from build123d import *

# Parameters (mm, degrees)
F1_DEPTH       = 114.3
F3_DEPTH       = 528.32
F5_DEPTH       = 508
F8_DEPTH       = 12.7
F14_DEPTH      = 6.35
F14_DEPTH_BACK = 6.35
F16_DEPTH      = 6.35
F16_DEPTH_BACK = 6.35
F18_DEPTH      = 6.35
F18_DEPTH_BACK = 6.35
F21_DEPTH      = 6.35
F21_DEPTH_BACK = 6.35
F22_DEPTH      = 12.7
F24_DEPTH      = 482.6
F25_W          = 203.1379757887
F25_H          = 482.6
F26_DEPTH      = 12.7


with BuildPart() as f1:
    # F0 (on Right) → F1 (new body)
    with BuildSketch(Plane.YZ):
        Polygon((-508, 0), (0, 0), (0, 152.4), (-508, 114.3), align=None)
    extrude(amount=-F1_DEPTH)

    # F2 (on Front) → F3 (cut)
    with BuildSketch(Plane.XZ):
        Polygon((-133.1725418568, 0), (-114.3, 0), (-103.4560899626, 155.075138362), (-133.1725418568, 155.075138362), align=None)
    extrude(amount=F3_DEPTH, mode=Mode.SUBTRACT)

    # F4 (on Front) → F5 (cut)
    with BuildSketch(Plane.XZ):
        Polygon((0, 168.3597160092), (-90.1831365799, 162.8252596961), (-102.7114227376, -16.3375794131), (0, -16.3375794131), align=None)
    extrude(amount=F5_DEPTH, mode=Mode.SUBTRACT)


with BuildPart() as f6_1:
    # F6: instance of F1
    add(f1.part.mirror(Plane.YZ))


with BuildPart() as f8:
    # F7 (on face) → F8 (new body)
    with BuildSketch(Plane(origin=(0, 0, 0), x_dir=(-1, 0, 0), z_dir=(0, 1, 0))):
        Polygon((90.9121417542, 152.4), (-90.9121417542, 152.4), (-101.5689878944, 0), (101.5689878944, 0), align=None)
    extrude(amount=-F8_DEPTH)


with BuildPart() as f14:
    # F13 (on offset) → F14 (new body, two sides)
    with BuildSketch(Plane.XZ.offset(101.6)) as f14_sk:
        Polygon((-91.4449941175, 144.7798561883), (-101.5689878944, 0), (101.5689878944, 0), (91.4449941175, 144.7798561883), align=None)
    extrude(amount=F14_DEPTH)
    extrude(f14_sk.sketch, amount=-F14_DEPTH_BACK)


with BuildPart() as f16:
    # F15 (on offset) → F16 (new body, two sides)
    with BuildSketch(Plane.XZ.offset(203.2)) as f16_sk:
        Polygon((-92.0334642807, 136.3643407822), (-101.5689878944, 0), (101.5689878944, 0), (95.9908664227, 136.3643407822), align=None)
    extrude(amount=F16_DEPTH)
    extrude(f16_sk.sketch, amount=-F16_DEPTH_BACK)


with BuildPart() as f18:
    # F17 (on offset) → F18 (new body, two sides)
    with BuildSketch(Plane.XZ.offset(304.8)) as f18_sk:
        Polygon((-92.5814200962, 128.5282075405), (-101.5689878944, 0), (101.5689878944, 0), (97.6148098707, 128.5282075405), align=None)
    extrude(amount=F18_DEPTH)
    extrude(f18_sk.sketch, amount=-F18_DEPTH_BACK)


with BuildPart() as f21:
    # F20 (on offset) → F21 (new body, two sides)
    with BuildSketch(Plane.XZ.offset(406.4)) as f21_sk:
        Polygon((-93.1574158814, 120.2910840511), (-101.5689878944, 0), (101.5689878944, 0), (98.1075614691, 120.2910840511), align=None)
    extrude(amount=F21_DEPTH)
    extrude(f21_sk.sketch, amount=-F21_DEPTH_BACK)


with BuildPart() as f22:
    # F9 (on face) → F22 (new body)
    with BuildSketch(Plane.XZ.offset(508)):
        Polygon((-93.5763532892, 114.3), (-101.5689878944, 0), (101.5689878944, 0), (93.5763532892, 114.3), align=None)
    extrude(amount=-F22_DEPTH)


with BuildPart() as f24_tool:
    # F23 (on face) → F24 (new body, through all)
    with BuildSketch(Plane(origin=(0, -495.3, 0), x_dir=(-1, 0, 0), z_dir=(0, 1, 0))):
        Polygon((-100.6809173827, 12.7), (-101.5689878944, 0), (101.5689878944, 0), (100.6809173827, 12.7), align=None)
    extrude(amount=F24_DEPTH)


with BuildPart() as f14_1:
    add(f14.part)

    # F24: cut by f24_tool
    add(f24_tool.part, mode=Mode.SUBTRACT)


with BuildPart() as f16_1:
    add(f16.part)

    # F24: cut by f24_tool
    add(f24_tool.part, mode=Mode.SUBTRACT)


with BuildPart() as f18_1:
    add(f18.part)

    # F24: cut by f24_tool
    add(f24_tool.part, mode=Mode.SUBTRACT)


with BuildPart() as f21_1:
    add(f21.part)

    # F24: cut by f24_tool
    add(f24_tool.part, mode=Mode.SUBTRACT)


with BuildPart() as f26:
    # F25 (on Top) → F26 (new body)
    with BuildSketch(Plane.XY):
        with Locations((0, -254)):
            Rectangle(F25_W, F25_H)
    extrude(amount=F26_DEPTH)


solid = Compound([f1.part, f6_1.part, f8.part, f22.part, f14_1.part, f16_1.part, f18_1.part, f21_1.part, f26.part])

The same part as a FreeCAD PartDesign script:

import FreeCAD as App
import Part
import Sketcher

V = App.Vector
Q = App.Units.Quantity


def add_polygon(sketch, points):
    """Adds a closed chain of lines whose ends are joined by coincident constraints."""
    first, n = sketch.GeometryCount, len(points)
    for a, b in zip(points, points[1:] + points[:1]):
        sketch.addGeometry(Part.LineSegment(App.Vector(*a, 0), App.Vector(*b, 0)), False)
    for i in range(n):
        sketch.addConstraint(Sketcher.Constraint("Coincident", first + i, 2, first + (i + 1) % n, 1))

doc = App.newDocument("Part")
params = doc.addObject("Spreadsheet::Sheet", "Params")
for row, (alias, value) in enumerate([
    ("sketch1_width", "20 in"),
    ("sketch1_height", "6 in"),
    ("sketch1_height2", "4.5 in"),
    ("pad1_length", "4.5 in"),
    ("pocket1_length", "20.8 in"),
    ("pocket2_length", "20 in"),
    ("pad2_length", "0.5 in"),
    ("pad3_length", "0.25 in"),
    ("pad3_length2", "0.25 in"),
    ("pad4_length", "0.25 in"),
    ("pad4_length2", "0.25 in"),
    ("pad5_length", "0.25 in"),
    ("pad5_length2", "0.25 in"),
    ("pad6_length", "0.25 in"),
    ("pad6_length2", "0.25 in"),
    ("pad7_length", "0.5 in"),
    ("pad8_length", "19 in"),
    ("sketch11_height", "19 in"),
    ("pad9_length", "0.5 in"),
], start=1):
    params.set(f"A{row}", alias)
    params.set(f"B{row}", "=" + value)
    params.setAlias(f"B{row}", alias)

body = doc.addObject("PartDesign::Body", "Body")

# Sketch on YZ plane
sketch1 = body.newObject("Sketcher::SketchObject", "Sketch")
sketch1.AttachmentSupport = (doc.getObject("YZ_Plane"), [""])
sketch1.MapMode = "FlatFace"
add_polygon(sketch1, [(-508, 0), (0, 0), (0, 152), (-508, 114)])  # lines 0-3
sketch1.addConstraint([
    Sketcher.Constraint("Horizontal", 0),
    Sketcher.Constraint("Vertical", 1),
    Sketcher.Constraint("Vertical", 3),
    Sketcher.Constraint("Coincident", 0, 2, -1, 1),
    Sketcher.Constraint("DistanceX", 0, 1, 0, 2, Q("20 in")),
    Sketcher.Constraint("DistanceY", 1, 1, 1, 2, Q("6 in")),
    Sketcher.Constraint("DistanceY", 3, 2, 3, 1, Q("4.5 in")),
])
sketch1.setExpression("Constraints[8]", "Params.sketch1_width")
sketch1.setExpression("Constraints[9]", "Params.sketch1_height")
sketch1.setExpression("Constraints[10]", "Params.sketch1_height2")
pad1 = body.newObject("PartDesign::Pad", "Pad")
pad1.Profile = sketch1
pad1.setExpression("Length", "Params.pad1_length")
pad1.Reversed = True

# Sketch on XZ plane
sketch2 = body.newObject("Sketcher::SketchObject", "Sketch001")
sketch2.AttachmentSupport = (doc.getObject("XZ_Plane"), [""])
sketch2.MapMode = "FlatFace"
add_polygon(sketch2, [(-133, 0), (-114, 0), (-103, 155), (-133, 155)])  # lines 0-3
sketch2.addConstraint([
    Sketcher.Constraint("Horizontal", 0),
    Sketcher.Constraint("Horizontal", 2),
    Sketcher.Constraint("Vertical", 3),
    Sketcher.Constraint("PointOnObject", 0, 2, -1),
    Sketcher.Constraint("Angle", 1, Q("86 deg")),
    Sketcher.Constraint("DistanceX", 0, 2, -1, 1, Q("4.5 in")),
    Sketcher.Constraint("DistanceX", 0, 1, 0, 2, 18.872542),
    Sketcher.Constraint("DistanceX", 2, 2, 2, 1, 29.716452),
])
pocket1 = body.newObject("PartDesign::Pocket", "Pocket")
pocket1.Profile = sketch2
pocket1.setExpression("Length", "Params.pocket1_length")
pocket1.Reversed = True

# Sketch on XZ plane
sketch3 = body.newObject("Sketcher::SketchObject", "Sketch002")
sketch3.AttachmentSupport = (doc.getObject("XZ_Plane"), [""])
sketch3.MapMode = "FlatFace"
add_polygon(sketch3, [(0, 168), (-90, 163), (-103, -16), (0, -16)])  # lines 0-3
sketch3.addConstraint([
    Sketcher.Constraint("Horizontal", 2),
    Sketcher.Constraint("Vertical", 3),
    Sketcher.Constraint("PointOnObject", 2, 2, -2),
    Sketcher.Constraint("Angle", 1, Q("-94 deg")),
    Sketcher.Constraint("Distance", 0, 90.352799),
    Sketcher.Constraint("DistanceX", 2, 1, 2, 2, 102.711423),
    Sketcher.Constraint("DistanceY", 3, 1, 3, 2, 184.697295),
    Sketcher.Constraint("DistanceY", -1, 1, 0, 2, 162.82526),
])
pocket2 = body.newObject("PartDesign::Pocket", "Pocket001")
pocket2.Profile = sketch3
pocket2.setExpression("Length", "Params.pocket2_length")
pocket2.Reversed = True
body2 = doc.addObject("PartDesign::Body", "Body001")
doc.recompute()

mirroring = doc.addObject("Part::Mirroring", "Mirroring")
mirroring.Source = body
mirroring.Base = V(0, 0, 0)
mirroring.Normal = V(1, 0, 0)
body2.BaseFeature = mirroring
doc.recompute()
body3 = doc.addObject("PartDesign::Body", "Body002")

# Sketch on XZ plane
sketch4 = body3.newObject("Sketcher::SketchObject", "Sketch003")
sketch4.AttachmentSupport = (doc.getObject("XZ_Plane002"), [""])
sketch4.MapMode = "FlatFace"
add_polygon(sketch4, [(-91, 152), (91, 152), (102, 0), (-102, 0)])  # lines 0-3
sketch4.addConstraint([
    Sketcher.Constraint("Horizontal", 0),
    Sketcher.Constraint("Horizontal", 2),
    Sketcher.Constraint("Symmetric", 1, 2, 2, 2, -1, 1),
    Sketcher.Constraint("Equal", 1, 3),
    Sketcher.Constraint("DistanceY", -1, 1, 0, 2, Q("6 in")),
    Sketcher.Constraint("Angle", 1, Q("-86 deg")),
    Sketcher.Constraint("DistanceX", 0, 1, 0, 2, 181.824284),
])
pad2 = body3.newObject("PartDesign::Pad", "Pad001")
pad2.Profile = sketch4
pad2.setExpression("Length", "Params.pad2_length")
body4 = doc.addObject("PartDesign::Body", "Body003")

# Sketch on XZ plane
sketch5 = body4.newObject("Sketcher::SketchObject", "Sketch004")
sketch5.AttachmentSupport = (doc.getObject("XZ_Plane003"), [""])
sketch5.MapMode = "FlatFace"
sketch5.AttachmentOffset = App.Placement(V(0, 0, 4 * 25.4), App.Rotation())
add_polygon(sketch5, [(-91, 145), (-102, 0), (102, 0), (91, 145)])  # lines 0-3
sketch5.addConstraint([
    Sketcher.Constraint("Horizontal", 1),
    Sketcher.Constraint("Horizontal", 3),
    Sketcher.Constraint("Symmetric", 0, 2, 1, 2, -1, 1),
    Sketcher.Constraint("Equal", 0, 2),
    Sketcher.Constraint("Angle", 0, Q("-94 deg")),
    Sketcher.Constraint("DistanceX", 3, 2, 3, 1, 182.889988),
    Sketcher.Constraint("DistanceX", 1, 1, 1, 2, 203.137976),
])
pad3 = body4.newObject("PartDesign::Pad", "Pad002")
pad3.Profile = sketch5
pad3.Type = "TwoLengths"
pad3.setExpression("Length", "Params.pad3_length")
pad3.setExpression("Length2", "Params.pad3_length2")
body5 = doc.addObject("PartDesign::Body", "Body004")

# Sketch on XZ plane
sketch6 = body5.newObject("Sketcher::SketchObject", "Sketch005")
sketch6.AttachmentSupport = (doc.getObject("XZ_Plane004"), [""])
sketch6.MapMode = "FlatFace"
sketch6.AttachmentOffset = App.Placement(V(0, 0, 8 * 25.4), App.Rotation())
add_polygon(sketch6, [(-92, 136), (-102, 0), (102, 0), (96, 136)])  # lines 0-3
sketch6.addConstraint([
    Sketcher.Constraint("Horizontal", 1),
    Sketcher.Constraint("Horizontal", 3),
    Sketcher.Constraint("Symmetric", 0, 2, 1, 2, -1, 1),
    Sketcher.Constraint("Angle", 0, Q("-94 deg")),
    Sketcher.Constraint("DistanceX", 3, 2, 3, 1, 188.024331),
    Sketcher.Constraint("Distance", 0, 136.697329),
    Sketcher.Constraint("DistanceX", 1, 1, 1, 2, 203.137976),
])
pad4 = body5.newObject("PartDesign::Pad", "Pad003")
pad4.Profile = sketch6
pad4.Type = "TwoLengths"
pad4.setExpression("Length", "Params.pad4_length")
pad4.setExpression("Length2", "Params.pad4_length2")
body6 = doc.addObject("PartDesign::Body", "Body005")

# Sketch on XZ plane
sketch7 = body6.newObject("Sketcher::SketchObject", "Sketch006")
sketch7.AttachmentSupport = (doc.getObject("XZ_Plane005"), [""])
sketch7.MapMode = "FlatFace"
sketch7.AttachmentOffset = App.Placement(V(0, 0, 12 * 25.4), App.Rotation())
add_polygon(sketch7, [(-93, 129), (-102, 0), (102, 0), (98, 129)])  # lines 0-3
sketch7.addConstraint([
    Sketcher.Constraint("Horizontal", 1),
    Sketcher.Constraint("Horizontal", 3),
    Sketcher.Constraint("Symmetric", 0, 2, 1, 2, -1, 1),
    Sketcher.Constraint("Angle", 0, Q("-94 deg")),
    Sketcher.Constraint("DistanceX", 3, 2, 3, 1, 190.19623),
    Sketcher.Constraint("Distance", 0, 128.84206),
    Sketcher.Constraint("Distance", 2, 128.589018),
])
pad5 = body6.newObject("PartDesign::Pad", "Pad004")
pad5.Profile = sketch7
pad5.Type = "TwoLengths"
pad5.setExpression("Length", "Params.pad5_length")
pad5.setExpression("Length2", "Params.pad5_length2")
body7 = doc.addObject("PartDesign::Body", "Body006")

# Sketch on XZ plane
sketch8 = body7.newObject("Sketcher::SketchObject", "Sketch007")
sketch8.AttachmentSupport = (doc.getObject("XZ_Plane006"), [""])
sketch8.MapMode = "FlatFace"
sketch8.AttachmentOffset = App.Placement(V(0, 0, 16 * 25.4), App.Rotation())
add_polygon(sketch8, [(-93, 120), (-102, 0), (102, 0), (98, 120)])  # lines 0-3
sketch8.addConstraint([
    Sketcher.Constraint("Horizontal", 1),
    Sketcher.Constraint("Horizontal", 3),
    Sketcher.Constraint("Symmetric", 0, 2, 1, 2, -1, 1),
    Sketcher.Constraint("Angle", 0, Q("-94 deg")),
    Sketcher.Constraint("DistanceX", 1, 1, 1, 2, 203.137976),
    Sketcher.Constraint("DistanceX", 3, 2, 3, 1, 191.264977),
    Sketcher.Constraint("DistanceX", -1, 1, 2, 2, 98.107561),
])
pad6 = body7.newObject("PartDesign::Pad", "Pad005")
pad6.Profile = sketch8
pad6.Type = "TwoLengths"
pad6.setExpression("Length", "Params.pad6_length")
pad6.setExpression("Length2", "Params.pad6_length2")
body8 = doc.addObject("PartDesign::Body", "Body007")

# Sketch on XZ plane
sketch9 = body8.newObject("Sketcher::SketchObject", "Sketch008")
sketch9.AttachmentSupport = (doc.getObject("XZ_Plane007"), [""])
sketch9.MapMode = "FlatFace"
sketch9.AttachmentOffset = App.Placement(V(0, 0, 20 * 25.4), App.Rotation())
add_polygon(sketch9, [(-94, 114), (-102, 0), (102, 0), (94, 114)])  # lines 0-3
sketch9.addConstraint([
    Sketcher.Constraint("Horizontal", 1),
    Sketcher.Constraint("Horizontal", 3),
    Sketcher.Constraint("Symmetric", 0, 2, 1, 2, -1, 1),
    Sketcher.Constraint("Equal", 0, 2),
    Sketcher.Constraint("Angle", 0, Q("-94 deg")),
    Sketcher.Constraint("DistanceY", -1, 1, 2, 2, Q("4.5 in")),
    Sketcher.Constraint("DistanceX", 1, 1, 1, 2, 203.137976),
])
pad7 = body8.newObject("PartDesign::Pad", "Pad006")
pad7.Profile = sketch9
pad7.setExpression("Length", "Params.pad7_length")
pad7.Reversed = True
body9 = doc.addObject("PartDesign::Body", "Body008")

# Sketch on XZ plane
sketch10 = body9.newObject("Sketcher::SketchObject", "Sketch009")
sketch10.AttachmentSupport = (doc.getObject("XZ_Plane008"), [""])
sketch10.MapMode = "FlatFace"
sketch10.AttachmentOffset = App.Placement(V(0, 0, 19.5 * 25.4), App.Rotation())
add_polygon(sketch10, [(101, 13), (102, 0), (-102, 0), (-101, 13)])  # lines 0-3
sketch10.addConstraint([
    Sketcher.Constraint("Horizontal", 1),
    Sketcher.Constraint("Horizontal", 3),
    Sketcher.Constraint("Symmetric", 0, 2, 1, 2, -1, 1),
    Sketcher.Constraint("Equal", 0, 2),
    Sketcher.Constraint("Angle", 0, Q("-86 deg")),
    Sketcher.Constraint("DistanceY", -1, 1, 2, 2, Q("0.5 in")),
    Sketcher.Constraint("DistanceX", 1, 2, 1, 1, 203.137976),
])
pad8 = body9.newObject("PartDesign::Pad", "Pad007")
pad8.Profile = sketch10
pad8.setExpression("Length", "Params.pad8_length")
pad8.Reversed = True
doc.recompute()

body10 = doc.addObject("PartDesign::Body", "Body009")
body10.BaseFeature = body9
boolean = body4.newObject("PartDesign::Boolean", "Boolean")
boolean.Type = "Cut"
boolean.addObjects([body10])
doc.recompute()

body11 = doc.addObject("PartDesign::Body", "Body010")
body11.BaseFeature = body9
boolean2 = body5.newObject("PartDesign::Boolean", "Boolean001")
boolean2.Type = "Cut"
boolean2.addObjects([body11])
doc.recompute()

body12 = doc.addObject("PartDesign::Body", "Body011")
body12.BaseFeature = body9
boolean3 = body6.newObject("PartDesign::Boolean", "Boolean002")
boolean3.Type = "Cut"
boolean3.addObjects([body12])
doc.recompute()

boolean4 = body7.newObject("PartDesign::Boolean", "Boolean003")
boolean4.Type = "Cut"
boolean4.addObjects([body9])
body13 = doc.addObject("PartDesign::Body", "Body012")

# Sketch on XY plane
sketch11 = body13.newObject("Sketcher::SketchObject", "Sketch010")
sketch11.AttachmentSupport = (doc.getObject("XY_Plane012"), [""])
sketch11.MapMode = "FlatFace"
add_polygon(sketch11, [(-102, -13), (-102, -495), (102, -495), (102, -13)])  # lines 0-3
sketch11.addConstraint([
    Sketcher.Constraint("Vertical", 0),
    Sketcher.Constraint("Horizontal", 1),
    Sketcher.Constraint("Vertical", 2),
    Sketcher.Constraint("Horizontal", 3),
    Sketcher.Constraint("DistanceY", 0, 2, 0, 1, Q("19 in")),
    Sketcher.Constraint("DistanceY", 0, 2, -1, 1, Q("19.5 in")),
    Sketcher.Constraint("DistanceX", 1, 1, 1, 2, 203.137976),
    Sketcher.Constraint("DistanceX", 0, 2, -1, 1, 101.568988),
])
sketch11.setExpression("Constraints[8]", "Params.sketch11_height")
pad9 = body13.newObject("PartDesign::Pad", "Pad008")
pad9.Profile = sketch11
pad9.setExpression("Length", "Params.pad9_length")
mirroring.Visibility = False

doc.recompute()
